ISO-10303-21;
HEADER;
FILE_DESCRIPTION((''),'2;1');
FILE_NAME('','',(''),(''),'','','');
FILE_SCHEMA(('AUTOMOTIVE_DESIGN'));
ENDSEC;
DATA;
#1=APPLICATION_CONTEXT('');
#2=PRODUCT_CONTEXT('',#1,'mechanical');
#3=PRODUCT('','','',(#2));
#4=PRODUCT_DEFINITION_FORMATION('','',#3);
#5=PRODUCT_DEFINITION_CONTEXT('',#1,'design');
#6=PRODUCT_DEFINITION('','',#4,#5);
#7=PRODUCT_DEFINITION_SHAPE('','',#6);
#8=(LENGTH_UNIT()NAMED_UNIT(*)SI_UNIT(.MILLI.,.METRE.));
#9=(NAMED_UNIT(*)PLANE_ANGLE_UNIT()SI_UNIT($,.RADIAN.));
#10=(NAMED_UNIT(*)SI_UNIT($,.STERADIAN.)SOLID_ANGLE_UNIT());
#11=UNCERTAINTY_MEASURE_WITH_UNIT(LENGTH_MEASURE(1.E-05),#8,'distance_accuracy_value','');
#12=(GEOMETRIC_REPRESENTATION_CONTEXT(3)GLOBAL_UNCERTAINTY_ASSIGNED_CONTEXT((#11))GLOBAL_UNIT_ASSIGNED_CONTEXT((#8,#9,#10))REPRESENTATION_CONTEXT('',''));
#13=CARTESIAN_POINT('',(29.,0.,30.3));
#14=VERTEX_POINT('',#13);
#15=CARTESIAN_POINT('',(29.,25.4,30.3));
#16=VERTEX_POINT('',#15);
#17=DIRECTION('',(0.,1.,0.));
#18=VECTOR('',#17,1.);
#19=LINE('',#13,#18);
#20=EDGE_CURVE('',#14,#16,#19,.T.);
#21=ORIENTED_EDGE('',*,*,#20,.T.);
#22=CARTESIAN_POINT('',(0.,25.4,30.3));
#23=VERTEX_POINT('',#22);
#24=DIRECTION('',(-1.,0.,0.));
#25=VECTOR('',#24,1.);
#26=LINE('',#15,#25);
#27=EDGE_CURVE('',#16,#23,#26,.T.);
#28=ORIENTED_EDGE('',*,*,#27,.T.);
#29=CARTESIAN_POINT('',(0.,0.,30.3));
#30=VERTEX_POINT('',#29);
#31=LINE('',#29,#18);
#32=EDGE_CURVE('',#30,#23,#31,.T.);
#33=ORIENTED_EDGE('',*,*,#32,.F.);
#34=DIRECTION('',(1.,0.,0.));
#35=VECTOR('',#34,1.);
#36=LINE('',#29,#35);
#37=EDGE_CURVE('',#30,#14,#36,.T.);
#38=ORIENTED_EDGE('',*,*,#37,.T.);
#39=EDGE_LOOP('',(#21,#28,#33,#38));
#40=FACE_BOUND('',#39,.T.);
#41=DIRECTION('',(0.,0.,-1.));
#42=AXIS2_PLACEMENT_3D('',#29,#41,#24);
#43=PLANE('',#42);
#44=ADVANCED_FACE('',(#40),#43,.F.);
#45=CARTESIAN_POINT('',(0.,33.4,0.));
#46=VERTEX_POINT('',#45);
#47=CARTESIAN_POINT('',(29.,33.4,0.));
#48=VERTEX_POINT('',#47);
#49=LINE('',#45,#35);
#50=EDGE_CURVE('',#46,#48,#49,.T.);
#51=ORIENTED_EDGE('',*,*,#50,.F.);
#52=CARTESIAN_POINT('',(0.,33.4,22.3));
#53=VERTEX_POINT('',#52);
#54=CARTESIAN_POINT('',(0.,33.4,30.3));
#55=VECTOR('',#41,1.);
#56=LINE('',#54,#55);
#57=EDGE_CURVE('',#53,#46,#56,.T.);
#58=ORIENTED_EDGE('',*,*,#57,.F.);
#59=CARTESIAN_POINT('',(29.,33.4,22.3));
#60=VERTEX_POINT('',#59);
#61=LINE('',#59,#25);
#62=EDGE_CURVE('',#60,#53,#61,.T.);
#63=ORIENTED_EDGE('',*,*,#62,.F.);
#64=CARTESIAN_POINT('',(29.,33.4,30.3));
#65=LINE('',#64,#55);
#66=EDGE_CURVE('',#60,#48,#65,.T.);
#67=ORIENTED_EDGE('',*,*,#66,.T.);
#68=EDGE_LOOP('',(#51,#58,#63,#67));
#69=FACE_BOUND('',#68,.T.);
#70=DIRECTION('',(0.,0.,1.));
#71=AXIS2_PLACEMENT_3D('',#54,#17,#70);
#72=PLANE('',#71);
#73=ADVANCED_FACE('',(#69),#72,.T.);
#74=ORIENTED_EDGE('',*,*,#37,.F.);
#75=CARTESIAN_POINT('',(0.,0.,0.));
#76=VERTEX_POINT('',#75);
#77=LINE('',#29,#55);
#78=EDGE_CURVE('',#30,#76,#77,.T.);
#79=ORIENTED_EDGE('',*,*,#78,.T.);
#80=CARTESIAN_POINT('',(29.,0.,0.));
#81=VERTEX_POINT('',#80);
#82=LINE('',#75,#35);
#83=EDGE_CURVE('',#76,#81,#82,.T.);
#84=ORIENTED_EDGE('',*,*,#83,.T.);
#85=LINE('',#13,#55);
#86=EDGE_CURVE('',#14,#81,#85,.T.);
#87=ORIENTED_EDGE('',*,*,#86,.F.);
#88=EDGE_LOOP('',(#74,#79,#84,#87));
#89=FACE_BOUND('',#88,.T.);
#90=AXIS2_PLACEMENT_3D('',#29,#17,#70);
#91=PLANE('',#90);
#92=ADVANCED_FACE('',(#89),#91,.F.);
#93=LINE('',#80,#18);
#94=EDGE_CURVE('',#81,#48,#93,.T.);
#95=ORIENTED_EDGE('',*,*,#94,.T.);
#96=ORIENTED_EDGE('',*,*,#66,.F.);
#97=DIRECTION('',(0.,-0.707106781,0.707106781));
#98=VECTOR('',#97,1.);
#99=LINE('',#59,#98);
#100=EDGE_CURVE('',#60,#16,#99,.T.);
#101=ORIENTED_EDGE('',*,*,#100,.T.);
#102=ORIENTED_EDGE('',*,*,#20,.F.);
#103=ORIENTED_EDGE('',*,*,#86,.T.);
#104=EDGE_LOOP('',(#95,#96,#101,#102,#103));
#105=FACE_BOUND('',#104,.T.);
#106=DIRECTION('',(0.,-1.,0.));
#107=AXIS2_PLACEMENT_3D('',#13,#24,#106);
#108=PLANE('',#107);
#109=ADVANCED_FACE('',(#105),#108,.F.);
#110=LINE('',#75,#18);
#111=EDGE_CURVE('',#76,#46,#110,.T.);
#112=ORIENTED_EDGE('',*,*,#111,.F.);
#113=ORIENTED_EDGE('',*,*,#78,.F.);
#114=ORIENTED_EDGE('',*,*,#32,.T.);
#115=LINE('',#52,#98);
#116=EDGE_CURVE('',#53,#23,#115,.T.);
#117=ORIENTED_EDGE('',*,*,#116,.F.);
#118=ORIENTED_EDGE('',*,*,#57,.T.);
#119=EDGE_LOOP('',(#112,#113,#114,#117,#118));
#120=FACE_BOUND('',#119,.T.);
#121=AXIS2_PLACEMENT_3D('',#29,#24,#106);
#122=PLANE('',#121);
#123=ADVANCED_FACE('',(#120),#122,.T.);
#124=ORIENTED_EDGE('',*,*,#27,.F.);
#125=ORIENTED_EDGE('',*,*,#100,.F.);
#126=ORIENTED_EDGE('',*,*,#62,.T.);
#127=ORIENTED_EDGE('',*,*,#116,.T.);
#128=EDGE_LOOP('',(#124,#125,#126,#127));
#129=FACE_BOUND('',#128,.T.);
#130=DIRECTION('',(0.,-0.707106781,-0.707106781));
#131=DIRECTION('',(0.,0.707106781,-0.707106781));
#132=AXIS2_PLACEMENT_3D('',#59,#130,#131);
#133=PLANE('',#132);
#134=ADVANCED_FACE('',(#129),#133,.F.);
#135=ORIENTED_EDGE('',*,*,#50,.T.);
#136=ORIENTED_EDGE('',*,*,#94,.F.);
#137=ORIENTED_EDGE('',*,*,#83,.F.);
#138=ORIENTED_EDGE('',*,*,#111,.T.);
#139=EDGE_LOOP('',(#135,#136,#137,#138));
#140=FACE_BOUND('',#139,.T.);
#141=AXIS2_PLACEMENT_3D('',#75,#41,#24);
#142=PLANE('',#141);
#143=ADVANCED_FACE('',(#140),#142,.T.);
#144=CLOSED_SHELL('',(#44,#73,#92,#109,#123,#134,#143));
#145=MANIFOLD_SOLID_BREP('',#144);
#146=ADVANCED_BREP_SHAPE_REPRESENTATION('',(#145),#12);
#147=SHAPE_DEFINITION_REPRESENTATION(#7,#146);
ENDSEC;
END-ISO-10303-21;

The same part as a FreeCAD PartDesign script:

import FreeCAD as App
import Part
import Sketcher

V = App.Vector
Q = App.Units.Quantity

doc = App.newDocument("Part")
body = doc.addObject("PartDesign::Body", "Body")

# Sketch on XY plane
sketch1 = body.newObject("Sketcher::SketchObject", "Sketch")
sketch1.AttachmentSupport = (doc.getObject("XY_Plane"), [""])
sketch1.MapMode = "FlatFace"
sketch1.addGeometry(Part.LineSegment(V(0, 33, 0), V(0, 0, 0)), False)
sketch1.addGeometry(Part.LineSegment(V(0, 0, 0), V(29, 0, 0)), False)
sketch1.addGeometry(Part.LineSegment(V(29, 0, 0), V(29, 33, 0)), False)
sketch1.addGeometry(Part.LineSegment(V(29, 33, 0), V(0, 33, 0)), False)
sketch1.addConstraint(Sketcher.Constraint("Coincident", 0, 2, 1, 1))
sketch1.addConstraint(Sketcher.Constraint("Coincident", 1, 2, 2, 1))
sketch1.addConstraint(Sketcher.Constraint("Coincident", 2, 2, 3, 1))
sketch1.addConstraint(Sketcher.Constraint("Coincident", 3, 2, 0, 1))
sketch1.addConstraint(Sketcher.Constraint("Vertical", 0))
sketch1.addConstraint(Sketcher.Constraint("Horizontal", 1))
sketch1.addConstraint(Sketcher.Constraint("Vertical", 2))
sketch1.addConstraint(Sketcher.Constraint("Horizontal", 3))
sketch1.addConstraint(Sketcher.Constraint("Coincident", 0, 2, -1, 1))
sketch1.addConstraint(Sketcher.Constraint("DistanceX", 1, 1, 1, 2, Q("29 mm")))
sketch1.addConstraint(Sketcher.Constraint("DistanceY", 0, 2, 0, 1, Q("33.4 mm")))
pad1 = body.newObject("PartDesign::Pad", "Pad")
pad1.Profile = sketch1
pad1.Length = 30.3

# Sketch on YZ plane
sketch2 = body.newObject("Sketcher::SketchObject", "Sketch001")
sketch2.AttachmentSupport = (doc.getObject("YZ_Plane"), [""])
sketch2.MapMode = "FlatFace"
sketch2.addGeometry(Part.LineSegment(V(33, 22, 0), V(25, 30, 0)), False)
sketch2.addGeometry(Part.LineSegment(V(25, 30, 0), V(33, 30, 0)), False)
sketch2.addGeometry(Part.LineSegment(V(33, 30, 0), V(33, 22, 0)), False)
sketch2.addConstraint(Sketcher.Constraint("Coincident", 0, 2, 1, 1))
sketch2.addConstraint(Sketcher.Constraint("Coincident", 1, 2, 2, 1))
sketch2.addConstraint(Sketcher.Constraint("Coincident", 2, 2, 0, 1))
sketch2.addConstraint(Sketcher.Constraint("Horizontal", 1))
sketch2.addConstraint(Sketcher.Constraint("Vertical", 2))
sketch2.addConstraint(Sketcher.Constraint("Equal", 1, 2))
sketch2.addConstraint(Sketcher.Constraint("DistanceX", 1, 1, 1, 2, Q("8 mm")))
sketch2.addConstraint(Sketcher.Constraint("DistanceX", -1, 1, 0, 2, Q("25.4 mm")))
sketch2.addConstraint(Sketcher.Constraint("DistanceY", -1, 1, 0, 2, Q("30.3 mm")))
pocket1 = body.newObject("PartDesign::Pocket", "Pocket")
pocket1.Profile = sketch2
pocket1.Type = "ThroughAll"
pocket1.Reversed = True

doc.recompute()
